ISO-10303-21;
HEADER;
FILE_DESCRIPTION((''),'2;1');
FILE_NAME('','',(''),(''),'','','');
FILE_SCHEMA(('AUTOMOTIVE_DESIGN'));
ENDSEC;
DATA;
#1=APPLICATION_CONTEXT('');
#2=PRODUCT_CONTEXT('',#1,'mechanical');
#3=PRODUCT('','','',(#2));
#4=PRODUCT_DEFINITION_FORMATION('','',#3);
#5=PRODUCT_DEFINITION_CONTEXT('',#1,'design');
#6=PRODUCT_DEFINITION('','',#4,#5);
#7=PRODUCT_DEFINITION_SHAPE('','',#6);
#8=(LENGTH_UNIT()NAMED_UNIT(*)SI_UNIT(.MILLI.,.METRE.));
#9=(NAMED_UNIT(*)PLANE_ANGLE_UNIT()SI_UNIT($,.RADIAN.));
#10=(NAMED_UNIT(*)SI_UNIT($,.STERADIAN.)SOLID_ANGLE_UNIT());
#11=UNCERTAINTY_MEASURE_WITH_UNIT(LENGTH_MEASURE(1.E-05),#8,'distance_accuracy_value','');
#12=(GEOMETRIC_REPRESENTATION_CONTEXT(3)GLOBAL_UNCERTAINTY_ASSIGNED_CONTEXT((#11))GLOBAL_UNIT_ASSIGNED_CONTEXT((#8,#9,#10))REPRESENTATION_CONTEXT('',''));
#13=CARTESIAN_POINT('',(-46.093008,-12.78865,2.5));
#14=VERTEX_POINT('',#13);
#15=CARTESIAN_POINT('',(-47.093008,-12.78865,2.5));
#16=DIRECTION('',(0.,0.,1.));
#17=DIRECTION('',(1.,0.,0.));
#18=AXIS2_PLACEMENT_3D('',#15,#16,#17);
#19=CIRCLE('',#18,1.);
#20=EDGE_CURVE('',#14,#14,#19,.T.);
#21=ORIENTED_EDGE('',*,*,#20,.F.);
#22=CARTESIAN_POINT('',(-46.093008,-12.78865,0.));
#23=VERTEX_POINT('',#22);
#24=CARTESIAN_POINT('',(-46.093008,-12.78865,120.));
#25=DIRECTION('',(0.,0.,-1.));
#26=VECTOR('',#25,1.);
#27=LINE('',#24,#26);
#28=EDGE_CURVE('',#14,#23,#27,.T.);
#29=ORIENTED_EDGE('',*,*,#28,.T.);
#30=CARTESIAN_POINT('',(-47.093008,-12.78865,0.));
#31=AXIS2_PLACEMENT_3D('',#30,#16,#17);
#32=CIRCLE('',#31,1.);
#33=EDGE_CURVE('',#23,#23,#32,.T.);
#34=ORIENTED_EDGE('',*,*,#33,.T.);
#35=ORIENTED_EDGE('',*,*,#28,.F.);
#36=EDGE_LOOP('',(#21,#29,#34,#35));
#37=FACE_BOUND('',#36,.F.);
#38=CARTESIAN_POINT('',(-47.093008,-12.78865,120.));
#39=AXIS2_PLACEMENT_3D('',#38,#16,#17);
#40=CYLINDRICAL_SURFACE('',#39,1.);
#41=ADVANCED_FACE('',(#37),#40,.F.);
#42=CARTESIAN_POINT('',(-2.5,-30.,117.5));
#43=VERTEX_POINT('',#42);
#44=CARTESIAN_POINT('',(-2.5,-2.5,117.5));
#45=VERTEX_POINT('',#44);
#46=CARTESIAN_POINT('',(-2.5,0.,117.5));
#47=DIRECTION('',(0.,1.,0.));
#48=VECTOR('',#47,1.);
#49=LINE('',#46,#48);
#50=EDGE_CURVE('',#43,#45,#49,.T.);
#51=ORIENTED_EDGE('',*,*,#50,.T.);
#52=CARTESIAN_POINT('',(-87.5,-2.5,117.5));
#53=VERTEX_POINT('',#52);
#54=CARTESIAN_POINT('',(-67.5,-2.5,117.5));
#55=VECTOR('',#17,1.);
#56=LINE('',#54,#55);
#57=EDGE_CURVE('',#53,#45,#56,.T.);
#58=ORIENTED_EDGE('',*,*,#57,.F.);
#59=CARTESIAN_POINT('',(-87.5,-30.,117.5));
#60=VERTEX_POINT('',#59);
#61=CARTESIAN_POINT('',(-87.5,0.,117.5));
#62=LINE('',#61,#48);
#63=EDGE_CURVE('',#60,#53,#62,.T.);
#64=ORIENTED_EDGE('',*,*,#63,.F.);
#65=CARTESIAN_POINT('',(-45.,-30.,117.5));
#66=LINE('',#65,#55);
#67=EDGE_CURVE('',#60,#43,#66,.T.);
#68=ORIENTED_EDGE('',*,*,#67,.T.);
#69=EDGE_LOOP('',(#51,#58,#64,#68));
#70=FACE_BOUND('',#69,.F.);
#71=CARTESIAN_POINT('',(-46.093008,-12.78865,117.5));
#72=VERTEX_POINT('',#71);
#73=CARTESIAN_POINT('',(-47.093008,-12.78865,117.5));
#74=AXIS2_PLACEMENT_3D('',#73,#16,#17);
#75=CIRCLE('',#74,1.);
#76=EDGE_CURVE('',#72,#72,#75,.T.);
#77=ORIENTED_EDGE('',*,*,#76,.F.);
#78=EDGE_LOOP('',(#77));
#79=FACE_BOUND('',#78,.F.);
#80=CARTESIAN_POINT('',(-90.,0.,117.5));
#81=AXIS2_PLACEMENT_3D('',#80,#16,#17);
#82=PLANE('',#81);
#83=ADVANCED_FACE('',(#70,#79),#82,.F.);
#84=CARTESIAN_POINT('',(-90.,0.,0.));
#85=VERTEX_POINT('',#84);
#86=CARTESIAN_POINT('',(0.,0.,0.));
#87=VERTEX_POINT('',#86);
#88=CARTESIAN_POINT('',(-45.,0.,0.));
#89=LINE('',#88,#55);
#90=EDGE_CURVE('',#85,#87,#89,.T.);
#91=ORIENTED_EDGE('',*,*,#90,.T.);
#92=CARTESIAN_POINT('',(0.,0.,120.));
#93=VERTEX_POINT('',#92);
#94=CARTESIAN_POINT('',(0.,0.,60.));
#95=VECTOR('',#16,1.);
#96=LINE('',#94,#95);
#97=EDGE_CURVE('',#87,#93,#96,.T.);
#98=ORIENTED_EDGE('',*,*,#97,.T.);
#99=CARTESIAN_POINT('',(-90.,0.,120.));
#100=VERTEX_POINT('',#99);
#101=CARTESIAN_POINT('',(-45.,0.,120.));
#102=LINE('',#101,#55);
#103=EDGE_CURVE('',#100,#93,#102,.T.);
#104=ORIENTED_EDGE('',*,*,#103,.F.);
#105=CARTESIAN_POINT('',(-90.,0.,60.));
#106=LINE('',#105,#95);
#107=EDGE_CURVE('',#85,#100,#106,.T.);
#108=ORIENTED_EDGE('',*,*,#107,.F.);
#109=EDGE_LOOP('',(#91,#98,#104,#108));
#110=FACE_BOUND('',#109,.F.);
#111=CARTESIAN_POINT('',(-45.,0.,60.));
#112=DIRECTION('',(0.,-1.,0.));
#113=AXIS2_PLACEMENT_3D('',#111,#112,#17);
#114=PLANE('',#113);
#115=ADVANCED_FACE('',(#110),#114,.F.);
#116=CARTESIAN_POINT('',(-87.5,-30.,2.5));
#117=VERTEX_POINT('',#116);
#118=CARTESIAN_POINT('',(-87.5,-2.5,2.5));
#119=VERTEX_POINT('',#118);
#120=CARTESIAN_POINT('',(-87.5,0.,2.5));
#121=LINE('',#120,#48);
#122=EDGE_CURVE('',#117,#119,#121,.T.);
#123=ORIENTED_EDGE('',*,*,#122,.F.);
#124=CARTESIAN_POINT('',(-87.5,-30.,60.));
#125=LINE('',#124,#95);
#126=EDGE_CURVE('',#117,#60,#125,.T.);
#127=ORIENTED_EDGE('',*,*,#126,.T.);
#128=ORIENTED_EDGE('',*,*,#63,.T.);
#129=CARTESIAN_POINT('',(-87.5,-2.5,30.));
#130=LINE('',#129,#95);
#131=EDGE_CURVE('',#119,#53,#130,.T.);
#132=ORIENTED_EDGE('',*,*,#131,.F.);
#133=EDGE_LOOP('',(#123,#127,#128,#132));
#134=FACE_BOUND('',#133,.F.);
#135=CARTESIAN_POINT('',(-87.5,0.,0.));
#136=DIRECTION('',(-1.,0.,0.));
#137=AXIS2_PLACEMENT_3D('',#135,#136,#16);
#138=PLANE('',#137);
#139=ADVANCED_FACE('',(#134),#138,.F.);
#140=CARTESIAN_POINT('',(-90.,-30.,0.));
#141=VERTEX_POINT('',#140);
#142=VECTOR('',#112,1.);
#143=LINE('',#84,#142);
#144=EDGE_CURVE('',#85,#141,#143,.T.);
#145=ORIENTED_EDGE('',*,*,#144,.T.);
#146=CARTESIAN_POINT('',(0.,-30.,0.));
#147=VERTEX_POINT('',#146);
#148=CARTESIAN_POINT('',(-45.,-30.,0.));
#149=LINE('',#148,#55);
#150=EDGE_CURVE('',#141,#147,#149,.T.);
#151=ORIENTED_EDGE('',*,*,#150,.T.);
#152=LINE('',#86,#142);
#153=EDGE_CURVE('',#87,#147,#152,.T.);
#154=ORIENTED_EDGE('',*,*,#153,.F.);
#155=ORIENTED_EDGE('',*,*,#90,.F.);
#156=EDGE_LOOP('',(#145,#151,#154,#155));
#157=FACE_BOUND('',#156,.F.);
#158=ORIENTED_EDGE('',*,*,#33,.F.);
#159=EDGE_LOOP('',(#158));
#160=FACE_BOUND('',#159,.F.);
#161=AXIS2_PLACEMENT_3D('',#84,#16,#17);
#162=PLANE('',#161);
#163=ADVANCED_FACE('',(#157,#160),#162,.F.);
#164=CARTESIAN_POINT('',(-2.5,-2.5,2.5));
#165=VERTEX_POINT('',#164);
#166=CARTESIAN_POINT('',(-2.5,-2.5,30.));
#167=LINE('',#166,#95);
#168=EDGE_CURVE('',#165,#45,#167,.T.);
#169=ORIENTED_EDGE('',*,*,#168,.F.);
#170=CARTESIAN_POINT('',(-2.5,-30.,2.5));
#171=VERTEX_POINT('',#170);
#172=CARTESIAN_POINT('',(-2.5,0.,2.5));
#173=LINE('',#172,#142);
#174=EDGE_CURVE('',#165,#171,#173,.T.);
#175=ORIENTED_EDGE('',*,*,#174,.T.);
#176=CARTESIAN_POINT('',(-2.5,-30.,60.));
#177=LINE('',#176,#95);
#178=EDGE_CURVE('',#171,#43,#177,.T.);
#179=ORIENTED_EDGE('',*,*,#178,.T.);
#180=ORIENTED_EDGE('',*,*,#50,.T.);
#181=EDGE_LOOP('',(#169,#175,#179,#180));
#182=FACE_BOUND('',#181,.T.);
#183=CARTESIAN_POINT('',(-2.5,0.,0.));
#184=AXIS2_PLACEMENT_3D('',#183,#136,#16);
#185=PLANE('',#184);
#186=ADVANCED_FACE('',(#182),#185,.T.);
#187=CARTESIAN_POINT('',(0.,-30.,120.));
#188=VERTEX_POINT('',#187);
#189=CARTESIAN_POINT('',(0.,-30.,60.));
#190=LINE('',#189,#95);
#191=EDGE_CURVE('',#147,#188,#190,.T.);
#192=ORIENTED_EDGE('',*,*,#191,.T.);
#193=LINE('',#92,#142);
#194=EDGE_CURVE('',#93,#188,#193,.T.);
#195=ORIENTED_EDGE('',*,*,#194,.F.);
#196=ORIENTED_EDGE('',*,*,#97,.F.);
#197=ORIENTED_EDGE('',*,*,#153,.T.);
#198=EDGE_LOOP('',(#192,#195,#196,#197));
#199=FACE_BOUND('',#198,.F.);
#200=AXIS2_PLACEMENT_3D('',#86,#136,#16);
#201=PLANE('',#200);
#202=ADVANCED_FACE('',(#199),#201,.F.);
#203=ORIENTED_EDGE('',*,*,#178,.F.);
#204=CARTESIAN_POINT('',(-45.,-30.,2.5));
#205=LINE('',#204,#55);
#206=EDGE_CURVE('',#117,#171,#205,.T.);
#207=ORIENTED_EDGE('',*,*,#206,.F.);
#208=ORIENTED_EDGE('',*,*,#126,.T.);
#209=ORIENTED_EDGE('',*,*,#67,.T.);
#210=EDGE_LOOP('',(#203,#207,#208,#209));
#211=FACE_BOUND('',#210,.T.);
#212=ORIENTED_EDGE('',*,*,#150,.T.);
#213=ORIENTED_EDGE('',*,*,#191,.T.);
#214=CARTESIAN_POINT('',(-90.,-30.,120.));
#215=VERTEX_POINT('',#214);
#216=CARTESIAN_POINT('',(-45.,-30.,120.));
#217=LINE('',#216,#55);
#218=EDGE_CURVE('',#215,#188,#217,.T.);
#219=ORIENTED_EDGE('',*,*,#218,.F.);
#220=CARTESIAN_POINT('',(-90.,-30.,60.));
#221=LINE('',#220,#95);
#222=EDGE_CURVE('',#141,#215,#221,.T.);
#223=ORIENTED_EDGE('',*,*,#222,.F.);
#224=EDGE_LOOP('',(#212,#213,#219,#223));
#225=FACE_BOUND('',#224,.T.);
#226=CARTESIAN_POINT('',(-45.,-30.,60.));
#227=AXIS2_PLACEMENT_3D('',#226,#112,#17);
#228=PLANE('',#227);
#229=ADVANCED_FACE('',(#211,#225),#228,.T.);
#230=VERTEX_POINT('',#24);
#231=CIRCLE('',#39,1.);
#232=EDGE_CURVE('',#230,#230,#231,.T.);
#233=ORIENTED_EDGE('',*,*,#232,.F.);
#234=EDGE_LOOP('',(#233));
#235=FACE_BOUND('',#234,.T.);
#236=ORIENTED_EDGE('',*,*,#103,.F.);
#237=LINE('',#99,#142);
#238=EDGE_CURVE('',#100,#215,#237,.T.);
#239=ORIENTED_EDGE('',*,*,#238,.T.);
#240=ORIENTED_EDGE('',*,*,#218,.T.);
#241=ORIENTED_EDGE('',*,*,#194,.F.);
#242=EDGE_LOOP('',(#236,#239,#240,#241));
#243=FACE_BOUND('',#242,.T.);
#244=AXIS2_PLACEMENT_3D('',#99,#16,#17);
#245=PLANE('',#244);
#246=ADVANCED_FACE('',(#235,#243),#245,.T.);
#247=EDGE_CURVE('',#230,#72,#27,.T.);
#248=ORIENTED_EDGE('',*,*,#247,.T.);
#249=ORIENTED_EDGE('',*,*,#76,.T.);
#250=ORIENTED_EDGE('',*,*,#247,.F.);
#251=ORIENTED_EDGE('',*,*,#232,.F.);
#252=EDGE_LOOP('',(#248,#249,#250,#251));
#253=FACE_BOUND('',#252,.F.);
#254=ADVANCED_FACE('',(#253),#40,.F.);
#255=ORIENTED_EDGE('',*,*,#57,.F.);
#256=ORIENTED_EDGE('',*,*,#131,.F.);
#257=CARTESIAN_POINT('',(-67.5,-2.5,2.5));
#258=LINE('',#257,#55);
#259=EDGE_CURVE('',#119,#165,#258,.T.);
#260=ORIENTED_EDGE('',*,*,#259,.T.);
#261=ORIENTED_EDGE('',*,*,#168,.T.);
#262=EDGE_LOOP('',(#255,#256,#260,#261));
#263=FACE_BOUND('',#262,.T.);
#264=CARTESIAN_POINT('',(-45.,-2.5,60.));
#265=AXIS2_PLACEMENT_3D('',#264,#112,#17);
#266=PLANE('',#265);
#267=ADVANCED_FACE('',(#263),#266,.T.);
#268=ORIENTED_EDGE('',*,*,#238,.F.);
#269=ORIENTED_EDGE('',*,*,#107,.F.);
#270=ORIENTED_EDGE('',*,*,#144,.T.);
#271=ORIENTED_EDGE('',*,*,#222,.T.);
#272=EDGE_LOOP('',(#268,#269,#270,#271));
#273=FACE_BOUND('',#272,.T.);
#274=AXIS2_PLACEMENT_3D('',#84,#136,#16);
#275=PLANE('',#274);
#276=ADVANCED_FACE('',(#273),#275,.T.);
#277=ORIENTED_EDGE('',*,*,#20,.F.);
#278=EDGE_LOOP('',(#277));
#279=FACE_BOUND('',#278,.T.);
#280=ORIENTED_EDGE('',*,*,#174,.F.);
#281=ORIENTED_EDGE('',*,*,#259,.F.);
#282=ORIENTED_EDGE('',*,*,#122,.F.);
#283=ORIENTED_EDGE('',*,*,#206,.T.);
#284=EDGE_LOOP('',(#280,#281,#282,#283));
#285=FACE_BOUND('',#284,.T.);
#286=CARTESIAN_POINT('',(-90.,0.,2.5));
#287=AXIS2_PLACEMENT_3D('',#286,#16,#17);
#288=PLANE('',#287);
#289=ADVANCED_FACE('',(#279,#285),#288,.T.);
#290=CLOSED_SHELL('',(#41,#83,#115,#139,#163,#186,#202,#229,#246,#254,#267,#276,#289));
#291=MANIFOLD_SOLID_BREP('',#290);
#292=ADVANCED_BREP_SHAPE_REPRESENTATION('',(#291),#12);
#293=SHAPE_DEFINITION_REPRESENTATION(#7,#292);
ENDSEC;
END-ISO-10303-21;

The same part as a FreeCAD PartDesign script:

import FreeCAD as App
import Part
import Sketcher
from FreeCAD import Vector


def faces_at(feature, points):
    """Names of the faces that lie closest to the given points."""
    faces = feature.Shape.Faces
    near = lambda p: min(range(len(faces)), key=lambda i: faces[i].distToShape(Part.Vertex(*p))[0])
    return sorted({f"Face{near(p) + 1}" for p in points})

doc = App.newDocument("Part")
body = doc.addObject("PartDesign::Body", "Body")

# Sketch on XZ plane
sketch1 = body.newObject("Sketcher::SketchObject", "Sketch")
sketch1.AttachmentSupport = (doc.getObject("XZ_Plane"), [""])
sketch1.MapMode = "FlatFace"
sketch1.addGeometry([
    Part.LineSegment(Vector(-90, 120, 0), Vector(-90, 0, 0)),
    Part.LineSegment(Vector(-90, 0, 0), Vector(0, 0, 0)),
    Part.LineSegment(Vector(0, 0, 0), Vector(0, 120, 0)),
    Part.LineSegment(Vector(0, 120, 0), Vector(-90, 120, 0)),
], False)
sketch1.addConstraint([
    Sketcher.Constraint("Coincident", 0, 2, 1, 1),
    Sketcher.Constraint("Coincident", 1, 2, 2, 1),
    Sketcher.Constraint("Coincident", 2, 2, 3, 1),
    Sketcher.Constraint("Coincident", 3, 2, 0, 1),
    Sketcher.Constraint("Vertical", 0),
    Sketcher.Constraint("Horizontal", 1),
    Sketcher.Constraint("Vertical", 2),
    Sketcher.Constraint("Horizontal", 3),
    Sketcher.Constraint("Coincident", 1, 2, -1, 1),
    Sketcher.Constraint("DistanceX", 1, 1, 1, 2, 90.0),
    Sketcher.Constraint("DistanceY", 0, 2, 0, 1, 120.0),
])
pad1 = body.newObject("PartDesign::Pad", "Pad")
pad1.Profile = sketch1
pad1.Length = 30
doc.recompute()

thickness = body.newObject("PartDesign::Thickness", "Thickness")
thickness.Base = (pad1, faces_at(pad1, [(-45, -30, 60)]))
thickness.Value = 2.5
thickness.Reversed = True
thickness.Join = "Arc"

# Sketch on XY plane
sketch2 = body.newObject("Sketcher::SketchObject", "Sketch001")
sketch2.AttachmentSupport = (doc.getObject("XY_Plane"), [""])
sketch2.MapMode = "FlatFace"
sketch2.AttachmentOffset = App.Placement(Vector(0, 0, 120), App.Rotation())
sketch2.addGeometry(Part.Circle(Vector(-47.093008, -12.78865, 0), Vector(0, 0, 1), 1), False)
sketch2.addConstraint([
    Sketcher.Constraint("Diameter", 0, 2.0),
    Sketcher.Constraint("DistanceY", 0, 3, -1, 1, 12.78865),
    Sketcher.Constraint("DistanceX", 0, 3, -1, 1, 47.093008),
])
pocket1 = body.newObject("PartDesign::Pocket", "Pocket")
pocket1.Profile = sketch2
pocket1.Type = "ThroughAll"

doc.recompute()
